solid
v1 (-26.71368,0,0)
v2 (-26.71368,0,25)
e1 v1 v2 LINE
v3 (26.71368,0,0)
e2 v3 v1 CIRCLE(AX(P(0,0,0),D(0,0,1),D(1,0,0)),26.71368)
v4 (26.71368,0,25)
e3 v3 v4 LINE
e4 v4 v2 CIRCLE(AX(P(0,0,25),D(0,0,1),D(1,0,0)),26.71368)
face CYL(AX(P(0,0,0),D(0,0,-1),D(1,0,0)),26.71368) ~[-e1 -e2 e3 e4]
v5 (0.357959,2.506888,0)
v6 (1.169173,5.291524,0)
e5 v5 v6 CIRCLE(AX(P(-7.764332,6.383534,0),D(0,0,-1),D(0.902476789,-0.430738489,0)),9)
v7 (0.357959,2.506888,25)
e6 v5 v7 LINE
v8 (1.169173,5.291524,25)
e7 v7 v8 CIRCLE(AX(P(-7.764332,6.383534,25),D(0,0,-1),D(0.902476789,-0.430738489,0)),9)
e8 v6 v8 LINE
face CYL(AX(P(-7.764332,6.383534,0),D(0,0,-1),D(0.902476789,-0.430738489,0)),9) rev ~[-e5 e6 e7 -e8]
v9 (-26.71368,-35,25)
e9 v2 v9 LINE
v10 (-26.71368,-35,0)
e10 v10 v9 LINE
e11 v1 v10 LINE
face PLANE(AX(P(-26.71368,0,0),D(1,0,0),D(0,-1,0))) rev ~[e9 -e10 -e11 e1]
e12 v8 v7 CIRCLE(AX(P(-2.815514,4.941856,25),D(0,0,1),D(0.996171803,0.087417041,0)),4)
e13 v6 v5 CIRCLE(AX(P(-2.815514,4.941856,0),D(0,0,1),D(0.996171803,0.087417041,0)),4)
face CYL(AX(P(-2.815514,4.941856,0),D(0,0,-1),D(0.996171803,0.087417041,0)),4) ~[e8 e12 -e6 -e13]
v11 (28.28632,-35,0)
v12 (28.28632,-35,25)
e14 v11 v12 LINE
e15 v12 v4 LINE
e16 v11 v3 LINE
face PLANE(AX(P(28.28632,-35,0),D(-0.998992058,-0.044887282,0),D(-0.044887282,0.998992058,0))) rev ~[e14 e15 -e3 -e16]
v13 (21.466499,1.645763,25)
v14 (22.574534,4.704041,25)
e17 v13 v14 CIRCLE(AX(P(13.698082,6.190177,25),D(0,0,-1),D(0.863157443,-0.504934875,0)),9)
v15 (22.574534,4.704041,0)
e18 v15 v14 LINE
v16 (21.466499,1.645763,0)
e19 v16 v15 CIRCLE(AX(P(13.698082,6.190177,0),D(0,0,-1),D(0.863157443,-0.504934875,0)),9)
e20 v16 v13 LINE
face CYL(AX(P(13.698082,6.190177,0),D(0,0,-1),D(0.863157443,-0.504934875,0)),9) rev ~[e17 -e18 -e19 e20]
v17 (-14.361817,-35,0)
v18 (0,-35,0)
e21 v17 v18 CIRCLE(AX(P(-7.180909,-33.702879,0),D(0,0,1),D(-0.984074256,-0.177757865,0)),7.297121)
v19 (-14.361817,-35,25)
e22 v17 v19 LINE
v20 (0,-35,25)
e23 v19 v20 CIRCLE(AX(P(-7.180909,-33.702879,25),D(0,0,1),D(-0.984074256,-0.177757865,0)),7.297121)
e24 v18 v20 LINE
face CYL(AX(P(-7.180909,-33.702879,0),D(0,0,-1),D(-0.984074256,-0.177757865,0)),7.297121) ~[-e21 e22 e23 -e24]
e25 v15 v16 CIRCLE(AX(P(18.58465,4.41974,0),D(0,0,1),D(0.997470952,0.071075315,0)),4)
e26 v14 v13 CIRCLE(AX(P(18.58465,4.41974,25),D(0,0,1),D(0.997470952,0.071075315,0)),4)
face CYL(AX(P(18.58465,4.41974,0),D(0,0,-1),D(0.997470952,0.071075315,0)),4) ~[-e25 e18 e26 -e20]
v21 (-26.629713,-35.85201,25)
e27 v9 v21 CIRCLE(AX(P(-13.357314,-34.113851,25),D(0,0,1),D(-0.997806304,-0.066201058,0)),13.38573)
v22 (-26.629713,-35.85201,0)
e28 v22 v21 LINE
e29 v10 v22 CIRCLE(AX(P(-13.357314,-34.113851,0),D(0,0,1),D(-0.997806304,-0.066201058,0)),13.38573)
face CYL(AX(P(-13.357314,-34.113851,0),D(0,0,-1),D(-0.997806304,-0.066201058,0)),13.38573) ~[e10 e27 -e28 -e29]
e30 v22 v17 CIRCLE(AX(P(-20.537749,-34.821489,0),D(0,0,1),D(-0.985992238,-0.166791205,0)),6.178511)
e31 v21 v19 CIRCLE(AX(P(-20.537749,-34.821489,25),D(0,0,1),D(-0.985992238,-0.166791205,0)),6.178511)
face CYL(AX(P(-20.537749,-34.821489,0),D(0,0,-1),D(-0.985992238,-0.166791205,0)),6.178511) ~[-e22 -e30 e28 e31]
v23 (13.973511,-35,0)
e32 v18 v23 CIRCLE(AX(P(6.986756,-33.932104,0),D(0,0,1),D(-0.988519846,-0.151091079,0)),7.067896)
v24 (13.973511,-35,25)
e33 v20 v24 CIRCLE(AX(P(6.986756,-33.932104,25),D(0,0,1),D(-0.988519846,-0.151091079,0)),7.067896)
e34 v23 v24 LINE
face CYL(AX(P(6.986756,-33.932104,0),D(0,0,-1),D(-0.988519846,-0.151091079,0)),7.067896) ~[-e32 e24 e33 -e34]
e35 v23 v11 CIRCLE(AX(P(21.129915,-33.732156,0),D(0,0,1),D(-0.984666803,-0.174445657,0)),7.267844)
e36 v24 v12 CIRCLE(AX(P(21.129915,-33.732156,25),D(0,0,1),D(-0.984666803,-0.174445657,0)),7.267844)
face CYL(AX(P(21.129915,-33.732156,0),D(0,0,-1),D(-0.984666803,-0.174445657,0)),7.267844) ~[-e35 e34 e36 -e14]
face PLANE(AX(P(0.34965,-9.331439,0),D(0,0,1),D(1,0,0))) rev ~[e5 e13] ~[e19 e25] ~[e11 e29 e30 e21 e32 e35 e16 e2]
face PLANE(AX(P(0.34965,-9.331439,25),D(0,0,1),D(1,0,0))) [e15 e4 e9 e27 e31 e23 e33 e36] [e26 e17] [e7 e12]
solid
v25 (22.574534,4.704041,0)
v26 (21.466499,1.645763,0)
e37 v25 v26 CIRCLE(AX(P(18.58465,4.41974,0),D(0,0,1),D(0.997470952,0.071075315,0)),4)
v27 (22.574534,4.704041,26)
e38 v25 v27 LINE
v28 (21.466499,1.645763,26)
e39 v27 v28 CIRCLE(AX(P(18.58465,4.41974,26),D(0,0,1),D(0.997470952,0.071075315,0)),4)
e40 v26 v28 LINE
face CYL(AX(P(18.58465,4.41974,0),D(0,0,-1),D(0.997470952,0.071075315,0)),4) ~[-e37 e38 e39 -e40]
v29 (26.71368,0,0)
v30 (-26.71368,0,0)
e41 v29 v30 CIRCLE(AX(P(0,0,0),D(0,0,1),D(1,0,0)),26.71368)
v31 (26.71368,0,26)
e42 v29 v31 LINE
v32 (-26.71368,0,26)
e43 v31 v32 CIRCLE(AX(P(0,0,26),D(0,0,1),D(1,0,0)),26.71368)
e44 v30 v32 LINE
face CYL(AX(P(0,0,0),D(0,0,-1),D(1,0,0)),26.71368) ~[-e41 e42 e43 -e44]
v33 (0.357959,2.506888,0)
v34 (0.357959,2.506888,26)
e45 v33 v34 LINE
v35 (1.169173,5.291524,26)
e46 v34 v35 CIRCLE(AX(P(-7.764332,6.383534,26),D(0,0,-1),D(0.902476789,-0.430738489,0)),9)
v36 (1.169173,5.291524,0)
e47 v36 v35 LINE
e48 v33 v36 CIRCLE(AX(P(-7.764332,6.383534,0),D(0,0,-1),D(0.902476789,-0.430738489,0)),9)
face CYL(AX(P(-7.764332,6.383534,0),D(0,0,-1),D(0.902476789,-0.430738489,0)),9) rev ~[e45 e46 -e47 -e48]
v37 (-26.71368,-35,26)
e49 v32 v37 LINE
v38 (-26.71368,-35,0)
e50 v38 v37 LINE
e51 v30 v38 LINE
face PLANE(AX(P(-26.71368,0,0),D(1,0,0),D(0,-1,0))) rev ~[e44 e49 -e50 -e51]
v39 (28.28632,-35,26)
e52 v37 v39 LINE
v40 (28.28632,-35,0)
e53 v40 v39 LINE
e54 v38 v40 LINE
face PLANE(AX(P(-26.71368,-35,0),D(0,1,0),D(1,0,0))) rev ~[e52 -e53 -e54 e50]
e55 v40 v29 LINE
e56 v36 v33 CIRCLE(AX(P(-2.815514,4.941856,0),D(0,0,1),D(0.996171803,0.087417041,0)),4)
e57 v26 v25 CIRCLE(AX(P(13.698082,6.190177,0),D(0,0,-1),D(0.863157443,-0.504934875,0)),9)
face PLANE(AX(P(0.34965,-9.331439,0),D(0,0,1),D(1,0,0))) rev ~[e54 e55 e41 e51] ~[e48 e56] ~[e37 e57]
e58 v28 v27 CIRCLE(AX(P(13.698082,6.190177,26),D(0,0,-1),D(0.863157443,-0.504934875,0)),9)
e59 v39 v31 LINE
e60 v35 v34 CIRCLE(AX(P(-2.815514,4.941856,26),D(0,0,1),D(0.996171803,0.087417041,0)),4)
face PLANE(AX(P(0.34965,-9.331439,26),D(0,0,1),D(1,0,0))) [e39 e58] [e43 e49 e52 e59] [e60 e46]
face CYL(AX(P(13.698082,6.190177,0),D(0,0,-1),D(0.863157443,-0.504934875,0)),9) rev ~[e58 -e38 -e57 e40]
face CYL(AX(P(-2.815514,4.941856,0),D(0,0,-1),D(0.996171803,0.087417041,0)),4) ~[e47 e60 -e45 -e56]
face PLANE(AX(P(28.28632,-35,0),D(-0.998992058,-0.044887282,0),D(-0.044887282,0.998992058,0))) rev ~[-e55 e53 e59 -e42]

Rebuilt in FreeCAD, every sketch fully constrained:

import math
import FreeCAD as App
import Part
import Sketcher
from FreeCAD import Vector
Q = App.Units.Quantity

doc = App.newDocument("Part")
body = doc.addObject("PartDesign::Body", "Body")

sketch1 = body.newObject("Sketcher::SketchObject", "Sketch")
sketch1.AttachmentSupport = (doc.getObject("XY_Plane"), [""])
sketch1.MapMode = "FlatFace"
sketch1.addGeometry(Part.LineSegment(Vector(28.3, -35, 0), Vector(26.7, 0, 0)), False)
sketch1.addGeometry(Part.ArcOfCircle(Part.Circle(Vector(0, 0, 0), Vector(0, 0, 1), 26.7), math.radians(0), math.radians(180)), False)
sketch1.addGeometry(Part.LineSegment(Vector(-26.7, 0, 0), Vector(-26.7, -35, 0)), False)
sketch1.addGeometry(Part.ArcOfCircle(Part.Circle(Vector(-13.4, -34.1, 0), Vector(0, 0, 1), 13.4), math.radians(-176.2), math.radians(-172.54)), False)
sketch1.addGeometry(Part.ArcOfCircle(Part.Circle(Vector(-20.5, -34.8, 0), Vector(0, 0, 1), 6.2), math.radians(-170), math.radians(-2)), False)
sketch1.addGeometry(Part.ArcOfCircle(Part.Circle(Vector(-7.2, -33.7, 0), Vector(0, 0, 1), 7.3), math.radians(-170), math.radians(-10)), False)
sketch1.addGeometry(Part.ArcOfCircle(Part.Circle(Vector(7, -33.9, 0), Vector(0, 0, 1), 7.1), math.radians(-171), math.radians(-9)), False)
sketch1.addGeometry(Part.ArcOfCircle(Part.Circle(Vector(21.1, -33.7, 0), Vector(0, 0, 1), 7.3), math.radians(-170), math.radians(-10)), False)
sketch1.addGeometry(Part.ArcOfCircle(Part.Circle(Vector(18.6, 4.4, 0), Vector(0, 0, 1), 4), math.radians(4), math.radians(316)), False)
sketch1.addGeometry(Part.ArcOfCircle(Part.Circle(Vector(13.7, 6.2, 0), Vector(0, 0, 1), 9), math.radians(-10), math.radians(330)), False)
sketch1.addGeometry(Part.ArcOfCircle(Part.Circle(Vector(-2.8, 4.9, 0), Vector(0, 0, 1), 4), math.radians(5), math.radians(323)), False)
sketch1.addGeometry(Part.ArcOfCircle(Part.Circle(Vector(-7.8, 6.4, 0), Vector(0, 0, 1), 9), math.radians(-7), math.radians(334)), False)
sketch1.addConstraint(Sketcher.Constraint("Coincident", 0, 2, 1, 1))
sketch1.addConstraint(Sketcher.Constraint("Tangent", 1, 2, 2, 1))
sketch1.addConstraint(Sketcher.Constraint("Coincident", 2, 2, 3, 1))
sketch1.addConstraint(Sketcher.Constraint("Coincident", 3, 2, 4, 1))
sketch1.addConstraint(Sketcher.Constraint("Coincident", 4, 2, 5, 1))
sketch1.addConstraint(Sketcher.Constraint("Coincident", 5, 2, 6, 1))
sketch1.addConstraint(Sketcher.Constraint("Coincident", 6, 2, 7, 1))
sketch1.addConstraint(Sketcher.Constraint("Coincident", 7, 2, 0, 1))
sketch1.addConstraint(Sketcher.Constraint("Coincident", 8, 1, 9, 1))
sketch1.addConstraint(Sketcher.Constraint("Coincident", 9, 2, 8, 2))
sketch1.addConstraint(Sketcher.Constraint("Coincident", 10, 1, 11, 1))
sketch1.addConstraint(Sketcher.Constraint("Coincident", 11, 2, 10, 2))
sketch1.addConstraint(Sketcher.Constraint("Vertical", 2))
sketch1.addConstraint(Sketcher.Constraint("Coincident", 1, 3, -1, 1))
sketch1.addConstraint(Sketcher.Constraint("Equal", 8, 10))
sketch1.addConstraint(Sketcher.Constraint("Equal", 9, 11))
sketch1.addConstraint(Sketcher.Constraint("PointOnObject", 0, 2, -1))
sketch1.addConstraint(Sketcher.Constraint("PointOnObject", 5, 2, -2))
sketch1.addConstraint(Sketcher.Constraint("Horizontal", 2, 2, 4, 2))
sketch1.addConstraint(Sketcher.Constraint("Horizontal", 4, 2, 5, 2))
sketch1.addConstraint(Sketcher.Constraint("Horizontal", 5, 2, 6, 2))
sketch1.addConstraint(Sketcher.Constraint("Horizontal", 6, 2, 7, 2))
sketch1.addConstraint(Sketcher.Constraint("Radius", 8, Q("4 mm")))
sketch1.addConstraint(Sketcher.Constraint("Radius", 9, Q("9 mm")))
sketch1.addConstraint(Sketcher.Constraint("DistanceY", 2, 2, 2, 1, Q("35 mm")))
sketch1.addConstraint(Sketcher.Constraint("Radius", 1, Q("26.71368 mm")))
sketch1.addConstraint(Sketcher.Constraint("Radius", 3, Q("13.38573 mm")))
sketch1.addConstraint(Sketcher.Constraint("Radius", 4, Q("6.178511 mm")))
sketch1.addConstraint(Sketcher.Constraint("Radius", 5, Q("7.297121 mm")))
sketch1.addConstraint(Sketcher.Constraint("Radius", 6, Q("7.067896 mm")))
sketch1.addConstraint(Sketcher.Constraint("Radius", 7, Q("7.267844 mm")))
sketch1.addConstraint(Sketcher.Constraint("DistanceX", -1, 1, 9, 2, Q("21.466499 mm")))
sketch1.addConstraint(Sketcher.Constraint("DistanceX", 3, 2, 3, 3, Q("13.272399 mm")))
sketch1.addConstraint(Sketcher.Constraint("DistanceY", 8, 3, 8, 1, Q("0.284301 mm")))
sketch1.addConstraint(Sketcher.Constraint("DistanceY", 3, 3, -1, 1, Q("34.113851 mm")))
sketch1.addConstraint(Sketcher.Constraint("DistanceX", 4, 3, -1, 1, Q("20.537749 mm")))
sketch1.addConstraint(Sketcher.Constraint("DistanceX", -1, 1, 8, 3, Q("18.58465 mm")))
sketch1.addConstraint(Sketcher.Constraint("DistanceY", -1, 1, 8, 3, Q("4.41974 mm")))
sketch1.addConstraint(Sketcher.Constraint("DistanceX", -1, 1, 6, 2, Q("13.973511 mm")))
sketch1.addConstraint(Sketcher.Constraint("DistanceX", -1, 1, 7, 2, Q("28.28632 mm")))
sketch1.addConstraint(Sketcher.Constraint("DistanceX", -1, 1, 11, 2, Q("0.357959 mm")))
sketch1.addConstraint(Sketcher.Constraint("DistanceY", 10, 3, 9, 3, Q("1.248321 mm")))
sketch1.addConstraint(Sketcher.Constraint("DistanceX", 10, 3, 6, 3, Q("9.80227 mm")))
sketch1.addConstraint(Sketcher.Constraint("DistanceY", 10, 3, 11, 3, Q("1.441679 mm")))
pad1 = body.newObject("PartDesign::Pad", "Pad")
pad1.Profile = sketch1
pad1.Length = 25
body2 = doc.addObject("PartDesign::Body", "Body001")

sketch2 = body2.newObject("Sketcher::SketchObject", "Sketch001")
sketch2.AttachmentSupport = (doc.getObject("XY_Plane001"), [""])
sketch2.MapMode = "FlatFace"
sketch2.addGeometry(Part.LineSegment(Vector(28.3, -35, 0), Vector(26.7, 0, 0)), False)
sketch2.addGeometry(Part.ArcOfCircle(Part.Circle(Vector(0, 0, 0), Vector(0, 0, 1), 26.7), math.radians(0), math.radians(180)), False)
sketch2.addGeometry(Part.LineSegment(Vector(-26.7, 0, 0), Vector(-26.7, -35, 0)), False)
sketch2.addGeometry(Part.LineSegment(Vector(-26.7, -35, 0), Vector(28.3, -35, 0)), False)
sketch2.addGeometry(Part.ArcOfCircle(Part.Circle(Vector(18.6, 4.4, 0), Vector(0, 0, 1), 4), math.radians(4), math.radians(316)), False)
sketch2.addGeometry(Part.ArcOfCircle(Part.Circle(Vector(13.7, 6.2, 0), Vector(0, 0, 1), 9), math.radians(-10), math.radians(330)), False)
sketch2.addGeometry(Part.ArcOfCircle(Part.Circle(Vector(-2.8, 4.9, 0), Vector(0, 0, 1), 4), math.radians(5), math.radians(323)), False)
sketch2.addGeometry(Part.ArcOfCircle(Part.Circle(Vector(-7.8, 6.4, 0), Vector(0, 0, 1), 9), math.radians(-7), math.radians(334)), False)
sketch2.addConstraint(Sketcher.Constraint("Coincident", 0, 2, 1, 1))
sketch2.addConstraint(Sketcher.Constraint("Tangent", 1, 2, 2, 1))
sketch2.addConstraint(Sketcher.Constraint("Coincident", 2, 2, 3, 1))
sketch2.addConstraint(Sketcher.Constraint("Coincident", 3, 2, 0, 1))
sketch2.addConstraint(Sketcher.Constraint("Coincident", 4, 1, 5, 1))
sketch2.addConstraint(Sketcher.Constraint("Coincident", 5, 2, 4, 2))
sketch2.addConstraint(Sketcher.Constraint("Coincident", 6, 1, 7, 1))
sketch2.addConstraint(Sketcher.Constraint("Coincident", 7, 2, 6, 2))
sketch2.addConstraint(Sketcher.Constraint("Vertical", 2))
sketch2.addConstraint(Sketcher.Constraint("Horizontal", 3))
sketch2.addConstraint(Sketcher.Constraint("Coincident", 1, 3, -1, 1))
sketch2.addConstraint(Sketcher.Constraint("Equal", 4, 6))
sketch2.addConstraint(Sketcher.Constraint("Equal", 5, 7))
sketch2.addConstraint(Sketcher.Constraint("PointOnObject", 0, 2, -1))
sketch2.addConstraint(Sketcher.Constraint("Radius", 4, Q("4 mm")))
sketch2.addConstraint(Sketcher.Constraint("Radius", 5, Q("9 mm")))
sketch2.addConstraint(Sketcher.Constraint("DistanceX", 3, 1, 3, 2, Q("55 mm")))
sketch2.addConstraint(Sketcher.Constraint("DistanceY", 2, 2, 2, 1, Q("35 mm")))
sketch2.addConstraint(Sketcher.Constraint("Radius", 1, Q("26.71368 mm")))
sketch2.addConstraint(Sketcher.Constraint("DistanceX", -1, 1, 5, 2, Q("21.466499 mm")))
sketch2.addConstraint(Sketcher.Constraint("DistanceY", 4, 3, 4, 1, Q("0.284301 mm")))
sketch2.addConstraint(Sketcher.Constraint("DistanceX", -1, 1, 4, 3, Q("18.58465 mm")))
sketch2.addConstraint(Sketcher.Constraint("DistanceY", -1, 1, 4, 3, Q("4.41974 mm")))
sketch2.addConstraint(Sketcher.Constraint("DistanceX", -1, 1, 7, 2, Q("0.357959 mm")))
sketch2.addConstraint(Sketcher.Constraint("DistanceY", 6, 3, 5, 3, Q("1.248321 mm")))
sketch2.addConstraint(Sketcher.Constraint("DistanceY", 6, 3, 7, 3, Q("1.441679 mm")))
sketch2.addConstraint(Sketcher.Constraint("DistanceX", 6, 3, 4, 1, Q("25.390048 mm")))
pad2 = body2.newObject("PartDesign::Pad", "Pad001")
pad2.Profile = sketch2
pad2.Length = 26

doc.recompute()
